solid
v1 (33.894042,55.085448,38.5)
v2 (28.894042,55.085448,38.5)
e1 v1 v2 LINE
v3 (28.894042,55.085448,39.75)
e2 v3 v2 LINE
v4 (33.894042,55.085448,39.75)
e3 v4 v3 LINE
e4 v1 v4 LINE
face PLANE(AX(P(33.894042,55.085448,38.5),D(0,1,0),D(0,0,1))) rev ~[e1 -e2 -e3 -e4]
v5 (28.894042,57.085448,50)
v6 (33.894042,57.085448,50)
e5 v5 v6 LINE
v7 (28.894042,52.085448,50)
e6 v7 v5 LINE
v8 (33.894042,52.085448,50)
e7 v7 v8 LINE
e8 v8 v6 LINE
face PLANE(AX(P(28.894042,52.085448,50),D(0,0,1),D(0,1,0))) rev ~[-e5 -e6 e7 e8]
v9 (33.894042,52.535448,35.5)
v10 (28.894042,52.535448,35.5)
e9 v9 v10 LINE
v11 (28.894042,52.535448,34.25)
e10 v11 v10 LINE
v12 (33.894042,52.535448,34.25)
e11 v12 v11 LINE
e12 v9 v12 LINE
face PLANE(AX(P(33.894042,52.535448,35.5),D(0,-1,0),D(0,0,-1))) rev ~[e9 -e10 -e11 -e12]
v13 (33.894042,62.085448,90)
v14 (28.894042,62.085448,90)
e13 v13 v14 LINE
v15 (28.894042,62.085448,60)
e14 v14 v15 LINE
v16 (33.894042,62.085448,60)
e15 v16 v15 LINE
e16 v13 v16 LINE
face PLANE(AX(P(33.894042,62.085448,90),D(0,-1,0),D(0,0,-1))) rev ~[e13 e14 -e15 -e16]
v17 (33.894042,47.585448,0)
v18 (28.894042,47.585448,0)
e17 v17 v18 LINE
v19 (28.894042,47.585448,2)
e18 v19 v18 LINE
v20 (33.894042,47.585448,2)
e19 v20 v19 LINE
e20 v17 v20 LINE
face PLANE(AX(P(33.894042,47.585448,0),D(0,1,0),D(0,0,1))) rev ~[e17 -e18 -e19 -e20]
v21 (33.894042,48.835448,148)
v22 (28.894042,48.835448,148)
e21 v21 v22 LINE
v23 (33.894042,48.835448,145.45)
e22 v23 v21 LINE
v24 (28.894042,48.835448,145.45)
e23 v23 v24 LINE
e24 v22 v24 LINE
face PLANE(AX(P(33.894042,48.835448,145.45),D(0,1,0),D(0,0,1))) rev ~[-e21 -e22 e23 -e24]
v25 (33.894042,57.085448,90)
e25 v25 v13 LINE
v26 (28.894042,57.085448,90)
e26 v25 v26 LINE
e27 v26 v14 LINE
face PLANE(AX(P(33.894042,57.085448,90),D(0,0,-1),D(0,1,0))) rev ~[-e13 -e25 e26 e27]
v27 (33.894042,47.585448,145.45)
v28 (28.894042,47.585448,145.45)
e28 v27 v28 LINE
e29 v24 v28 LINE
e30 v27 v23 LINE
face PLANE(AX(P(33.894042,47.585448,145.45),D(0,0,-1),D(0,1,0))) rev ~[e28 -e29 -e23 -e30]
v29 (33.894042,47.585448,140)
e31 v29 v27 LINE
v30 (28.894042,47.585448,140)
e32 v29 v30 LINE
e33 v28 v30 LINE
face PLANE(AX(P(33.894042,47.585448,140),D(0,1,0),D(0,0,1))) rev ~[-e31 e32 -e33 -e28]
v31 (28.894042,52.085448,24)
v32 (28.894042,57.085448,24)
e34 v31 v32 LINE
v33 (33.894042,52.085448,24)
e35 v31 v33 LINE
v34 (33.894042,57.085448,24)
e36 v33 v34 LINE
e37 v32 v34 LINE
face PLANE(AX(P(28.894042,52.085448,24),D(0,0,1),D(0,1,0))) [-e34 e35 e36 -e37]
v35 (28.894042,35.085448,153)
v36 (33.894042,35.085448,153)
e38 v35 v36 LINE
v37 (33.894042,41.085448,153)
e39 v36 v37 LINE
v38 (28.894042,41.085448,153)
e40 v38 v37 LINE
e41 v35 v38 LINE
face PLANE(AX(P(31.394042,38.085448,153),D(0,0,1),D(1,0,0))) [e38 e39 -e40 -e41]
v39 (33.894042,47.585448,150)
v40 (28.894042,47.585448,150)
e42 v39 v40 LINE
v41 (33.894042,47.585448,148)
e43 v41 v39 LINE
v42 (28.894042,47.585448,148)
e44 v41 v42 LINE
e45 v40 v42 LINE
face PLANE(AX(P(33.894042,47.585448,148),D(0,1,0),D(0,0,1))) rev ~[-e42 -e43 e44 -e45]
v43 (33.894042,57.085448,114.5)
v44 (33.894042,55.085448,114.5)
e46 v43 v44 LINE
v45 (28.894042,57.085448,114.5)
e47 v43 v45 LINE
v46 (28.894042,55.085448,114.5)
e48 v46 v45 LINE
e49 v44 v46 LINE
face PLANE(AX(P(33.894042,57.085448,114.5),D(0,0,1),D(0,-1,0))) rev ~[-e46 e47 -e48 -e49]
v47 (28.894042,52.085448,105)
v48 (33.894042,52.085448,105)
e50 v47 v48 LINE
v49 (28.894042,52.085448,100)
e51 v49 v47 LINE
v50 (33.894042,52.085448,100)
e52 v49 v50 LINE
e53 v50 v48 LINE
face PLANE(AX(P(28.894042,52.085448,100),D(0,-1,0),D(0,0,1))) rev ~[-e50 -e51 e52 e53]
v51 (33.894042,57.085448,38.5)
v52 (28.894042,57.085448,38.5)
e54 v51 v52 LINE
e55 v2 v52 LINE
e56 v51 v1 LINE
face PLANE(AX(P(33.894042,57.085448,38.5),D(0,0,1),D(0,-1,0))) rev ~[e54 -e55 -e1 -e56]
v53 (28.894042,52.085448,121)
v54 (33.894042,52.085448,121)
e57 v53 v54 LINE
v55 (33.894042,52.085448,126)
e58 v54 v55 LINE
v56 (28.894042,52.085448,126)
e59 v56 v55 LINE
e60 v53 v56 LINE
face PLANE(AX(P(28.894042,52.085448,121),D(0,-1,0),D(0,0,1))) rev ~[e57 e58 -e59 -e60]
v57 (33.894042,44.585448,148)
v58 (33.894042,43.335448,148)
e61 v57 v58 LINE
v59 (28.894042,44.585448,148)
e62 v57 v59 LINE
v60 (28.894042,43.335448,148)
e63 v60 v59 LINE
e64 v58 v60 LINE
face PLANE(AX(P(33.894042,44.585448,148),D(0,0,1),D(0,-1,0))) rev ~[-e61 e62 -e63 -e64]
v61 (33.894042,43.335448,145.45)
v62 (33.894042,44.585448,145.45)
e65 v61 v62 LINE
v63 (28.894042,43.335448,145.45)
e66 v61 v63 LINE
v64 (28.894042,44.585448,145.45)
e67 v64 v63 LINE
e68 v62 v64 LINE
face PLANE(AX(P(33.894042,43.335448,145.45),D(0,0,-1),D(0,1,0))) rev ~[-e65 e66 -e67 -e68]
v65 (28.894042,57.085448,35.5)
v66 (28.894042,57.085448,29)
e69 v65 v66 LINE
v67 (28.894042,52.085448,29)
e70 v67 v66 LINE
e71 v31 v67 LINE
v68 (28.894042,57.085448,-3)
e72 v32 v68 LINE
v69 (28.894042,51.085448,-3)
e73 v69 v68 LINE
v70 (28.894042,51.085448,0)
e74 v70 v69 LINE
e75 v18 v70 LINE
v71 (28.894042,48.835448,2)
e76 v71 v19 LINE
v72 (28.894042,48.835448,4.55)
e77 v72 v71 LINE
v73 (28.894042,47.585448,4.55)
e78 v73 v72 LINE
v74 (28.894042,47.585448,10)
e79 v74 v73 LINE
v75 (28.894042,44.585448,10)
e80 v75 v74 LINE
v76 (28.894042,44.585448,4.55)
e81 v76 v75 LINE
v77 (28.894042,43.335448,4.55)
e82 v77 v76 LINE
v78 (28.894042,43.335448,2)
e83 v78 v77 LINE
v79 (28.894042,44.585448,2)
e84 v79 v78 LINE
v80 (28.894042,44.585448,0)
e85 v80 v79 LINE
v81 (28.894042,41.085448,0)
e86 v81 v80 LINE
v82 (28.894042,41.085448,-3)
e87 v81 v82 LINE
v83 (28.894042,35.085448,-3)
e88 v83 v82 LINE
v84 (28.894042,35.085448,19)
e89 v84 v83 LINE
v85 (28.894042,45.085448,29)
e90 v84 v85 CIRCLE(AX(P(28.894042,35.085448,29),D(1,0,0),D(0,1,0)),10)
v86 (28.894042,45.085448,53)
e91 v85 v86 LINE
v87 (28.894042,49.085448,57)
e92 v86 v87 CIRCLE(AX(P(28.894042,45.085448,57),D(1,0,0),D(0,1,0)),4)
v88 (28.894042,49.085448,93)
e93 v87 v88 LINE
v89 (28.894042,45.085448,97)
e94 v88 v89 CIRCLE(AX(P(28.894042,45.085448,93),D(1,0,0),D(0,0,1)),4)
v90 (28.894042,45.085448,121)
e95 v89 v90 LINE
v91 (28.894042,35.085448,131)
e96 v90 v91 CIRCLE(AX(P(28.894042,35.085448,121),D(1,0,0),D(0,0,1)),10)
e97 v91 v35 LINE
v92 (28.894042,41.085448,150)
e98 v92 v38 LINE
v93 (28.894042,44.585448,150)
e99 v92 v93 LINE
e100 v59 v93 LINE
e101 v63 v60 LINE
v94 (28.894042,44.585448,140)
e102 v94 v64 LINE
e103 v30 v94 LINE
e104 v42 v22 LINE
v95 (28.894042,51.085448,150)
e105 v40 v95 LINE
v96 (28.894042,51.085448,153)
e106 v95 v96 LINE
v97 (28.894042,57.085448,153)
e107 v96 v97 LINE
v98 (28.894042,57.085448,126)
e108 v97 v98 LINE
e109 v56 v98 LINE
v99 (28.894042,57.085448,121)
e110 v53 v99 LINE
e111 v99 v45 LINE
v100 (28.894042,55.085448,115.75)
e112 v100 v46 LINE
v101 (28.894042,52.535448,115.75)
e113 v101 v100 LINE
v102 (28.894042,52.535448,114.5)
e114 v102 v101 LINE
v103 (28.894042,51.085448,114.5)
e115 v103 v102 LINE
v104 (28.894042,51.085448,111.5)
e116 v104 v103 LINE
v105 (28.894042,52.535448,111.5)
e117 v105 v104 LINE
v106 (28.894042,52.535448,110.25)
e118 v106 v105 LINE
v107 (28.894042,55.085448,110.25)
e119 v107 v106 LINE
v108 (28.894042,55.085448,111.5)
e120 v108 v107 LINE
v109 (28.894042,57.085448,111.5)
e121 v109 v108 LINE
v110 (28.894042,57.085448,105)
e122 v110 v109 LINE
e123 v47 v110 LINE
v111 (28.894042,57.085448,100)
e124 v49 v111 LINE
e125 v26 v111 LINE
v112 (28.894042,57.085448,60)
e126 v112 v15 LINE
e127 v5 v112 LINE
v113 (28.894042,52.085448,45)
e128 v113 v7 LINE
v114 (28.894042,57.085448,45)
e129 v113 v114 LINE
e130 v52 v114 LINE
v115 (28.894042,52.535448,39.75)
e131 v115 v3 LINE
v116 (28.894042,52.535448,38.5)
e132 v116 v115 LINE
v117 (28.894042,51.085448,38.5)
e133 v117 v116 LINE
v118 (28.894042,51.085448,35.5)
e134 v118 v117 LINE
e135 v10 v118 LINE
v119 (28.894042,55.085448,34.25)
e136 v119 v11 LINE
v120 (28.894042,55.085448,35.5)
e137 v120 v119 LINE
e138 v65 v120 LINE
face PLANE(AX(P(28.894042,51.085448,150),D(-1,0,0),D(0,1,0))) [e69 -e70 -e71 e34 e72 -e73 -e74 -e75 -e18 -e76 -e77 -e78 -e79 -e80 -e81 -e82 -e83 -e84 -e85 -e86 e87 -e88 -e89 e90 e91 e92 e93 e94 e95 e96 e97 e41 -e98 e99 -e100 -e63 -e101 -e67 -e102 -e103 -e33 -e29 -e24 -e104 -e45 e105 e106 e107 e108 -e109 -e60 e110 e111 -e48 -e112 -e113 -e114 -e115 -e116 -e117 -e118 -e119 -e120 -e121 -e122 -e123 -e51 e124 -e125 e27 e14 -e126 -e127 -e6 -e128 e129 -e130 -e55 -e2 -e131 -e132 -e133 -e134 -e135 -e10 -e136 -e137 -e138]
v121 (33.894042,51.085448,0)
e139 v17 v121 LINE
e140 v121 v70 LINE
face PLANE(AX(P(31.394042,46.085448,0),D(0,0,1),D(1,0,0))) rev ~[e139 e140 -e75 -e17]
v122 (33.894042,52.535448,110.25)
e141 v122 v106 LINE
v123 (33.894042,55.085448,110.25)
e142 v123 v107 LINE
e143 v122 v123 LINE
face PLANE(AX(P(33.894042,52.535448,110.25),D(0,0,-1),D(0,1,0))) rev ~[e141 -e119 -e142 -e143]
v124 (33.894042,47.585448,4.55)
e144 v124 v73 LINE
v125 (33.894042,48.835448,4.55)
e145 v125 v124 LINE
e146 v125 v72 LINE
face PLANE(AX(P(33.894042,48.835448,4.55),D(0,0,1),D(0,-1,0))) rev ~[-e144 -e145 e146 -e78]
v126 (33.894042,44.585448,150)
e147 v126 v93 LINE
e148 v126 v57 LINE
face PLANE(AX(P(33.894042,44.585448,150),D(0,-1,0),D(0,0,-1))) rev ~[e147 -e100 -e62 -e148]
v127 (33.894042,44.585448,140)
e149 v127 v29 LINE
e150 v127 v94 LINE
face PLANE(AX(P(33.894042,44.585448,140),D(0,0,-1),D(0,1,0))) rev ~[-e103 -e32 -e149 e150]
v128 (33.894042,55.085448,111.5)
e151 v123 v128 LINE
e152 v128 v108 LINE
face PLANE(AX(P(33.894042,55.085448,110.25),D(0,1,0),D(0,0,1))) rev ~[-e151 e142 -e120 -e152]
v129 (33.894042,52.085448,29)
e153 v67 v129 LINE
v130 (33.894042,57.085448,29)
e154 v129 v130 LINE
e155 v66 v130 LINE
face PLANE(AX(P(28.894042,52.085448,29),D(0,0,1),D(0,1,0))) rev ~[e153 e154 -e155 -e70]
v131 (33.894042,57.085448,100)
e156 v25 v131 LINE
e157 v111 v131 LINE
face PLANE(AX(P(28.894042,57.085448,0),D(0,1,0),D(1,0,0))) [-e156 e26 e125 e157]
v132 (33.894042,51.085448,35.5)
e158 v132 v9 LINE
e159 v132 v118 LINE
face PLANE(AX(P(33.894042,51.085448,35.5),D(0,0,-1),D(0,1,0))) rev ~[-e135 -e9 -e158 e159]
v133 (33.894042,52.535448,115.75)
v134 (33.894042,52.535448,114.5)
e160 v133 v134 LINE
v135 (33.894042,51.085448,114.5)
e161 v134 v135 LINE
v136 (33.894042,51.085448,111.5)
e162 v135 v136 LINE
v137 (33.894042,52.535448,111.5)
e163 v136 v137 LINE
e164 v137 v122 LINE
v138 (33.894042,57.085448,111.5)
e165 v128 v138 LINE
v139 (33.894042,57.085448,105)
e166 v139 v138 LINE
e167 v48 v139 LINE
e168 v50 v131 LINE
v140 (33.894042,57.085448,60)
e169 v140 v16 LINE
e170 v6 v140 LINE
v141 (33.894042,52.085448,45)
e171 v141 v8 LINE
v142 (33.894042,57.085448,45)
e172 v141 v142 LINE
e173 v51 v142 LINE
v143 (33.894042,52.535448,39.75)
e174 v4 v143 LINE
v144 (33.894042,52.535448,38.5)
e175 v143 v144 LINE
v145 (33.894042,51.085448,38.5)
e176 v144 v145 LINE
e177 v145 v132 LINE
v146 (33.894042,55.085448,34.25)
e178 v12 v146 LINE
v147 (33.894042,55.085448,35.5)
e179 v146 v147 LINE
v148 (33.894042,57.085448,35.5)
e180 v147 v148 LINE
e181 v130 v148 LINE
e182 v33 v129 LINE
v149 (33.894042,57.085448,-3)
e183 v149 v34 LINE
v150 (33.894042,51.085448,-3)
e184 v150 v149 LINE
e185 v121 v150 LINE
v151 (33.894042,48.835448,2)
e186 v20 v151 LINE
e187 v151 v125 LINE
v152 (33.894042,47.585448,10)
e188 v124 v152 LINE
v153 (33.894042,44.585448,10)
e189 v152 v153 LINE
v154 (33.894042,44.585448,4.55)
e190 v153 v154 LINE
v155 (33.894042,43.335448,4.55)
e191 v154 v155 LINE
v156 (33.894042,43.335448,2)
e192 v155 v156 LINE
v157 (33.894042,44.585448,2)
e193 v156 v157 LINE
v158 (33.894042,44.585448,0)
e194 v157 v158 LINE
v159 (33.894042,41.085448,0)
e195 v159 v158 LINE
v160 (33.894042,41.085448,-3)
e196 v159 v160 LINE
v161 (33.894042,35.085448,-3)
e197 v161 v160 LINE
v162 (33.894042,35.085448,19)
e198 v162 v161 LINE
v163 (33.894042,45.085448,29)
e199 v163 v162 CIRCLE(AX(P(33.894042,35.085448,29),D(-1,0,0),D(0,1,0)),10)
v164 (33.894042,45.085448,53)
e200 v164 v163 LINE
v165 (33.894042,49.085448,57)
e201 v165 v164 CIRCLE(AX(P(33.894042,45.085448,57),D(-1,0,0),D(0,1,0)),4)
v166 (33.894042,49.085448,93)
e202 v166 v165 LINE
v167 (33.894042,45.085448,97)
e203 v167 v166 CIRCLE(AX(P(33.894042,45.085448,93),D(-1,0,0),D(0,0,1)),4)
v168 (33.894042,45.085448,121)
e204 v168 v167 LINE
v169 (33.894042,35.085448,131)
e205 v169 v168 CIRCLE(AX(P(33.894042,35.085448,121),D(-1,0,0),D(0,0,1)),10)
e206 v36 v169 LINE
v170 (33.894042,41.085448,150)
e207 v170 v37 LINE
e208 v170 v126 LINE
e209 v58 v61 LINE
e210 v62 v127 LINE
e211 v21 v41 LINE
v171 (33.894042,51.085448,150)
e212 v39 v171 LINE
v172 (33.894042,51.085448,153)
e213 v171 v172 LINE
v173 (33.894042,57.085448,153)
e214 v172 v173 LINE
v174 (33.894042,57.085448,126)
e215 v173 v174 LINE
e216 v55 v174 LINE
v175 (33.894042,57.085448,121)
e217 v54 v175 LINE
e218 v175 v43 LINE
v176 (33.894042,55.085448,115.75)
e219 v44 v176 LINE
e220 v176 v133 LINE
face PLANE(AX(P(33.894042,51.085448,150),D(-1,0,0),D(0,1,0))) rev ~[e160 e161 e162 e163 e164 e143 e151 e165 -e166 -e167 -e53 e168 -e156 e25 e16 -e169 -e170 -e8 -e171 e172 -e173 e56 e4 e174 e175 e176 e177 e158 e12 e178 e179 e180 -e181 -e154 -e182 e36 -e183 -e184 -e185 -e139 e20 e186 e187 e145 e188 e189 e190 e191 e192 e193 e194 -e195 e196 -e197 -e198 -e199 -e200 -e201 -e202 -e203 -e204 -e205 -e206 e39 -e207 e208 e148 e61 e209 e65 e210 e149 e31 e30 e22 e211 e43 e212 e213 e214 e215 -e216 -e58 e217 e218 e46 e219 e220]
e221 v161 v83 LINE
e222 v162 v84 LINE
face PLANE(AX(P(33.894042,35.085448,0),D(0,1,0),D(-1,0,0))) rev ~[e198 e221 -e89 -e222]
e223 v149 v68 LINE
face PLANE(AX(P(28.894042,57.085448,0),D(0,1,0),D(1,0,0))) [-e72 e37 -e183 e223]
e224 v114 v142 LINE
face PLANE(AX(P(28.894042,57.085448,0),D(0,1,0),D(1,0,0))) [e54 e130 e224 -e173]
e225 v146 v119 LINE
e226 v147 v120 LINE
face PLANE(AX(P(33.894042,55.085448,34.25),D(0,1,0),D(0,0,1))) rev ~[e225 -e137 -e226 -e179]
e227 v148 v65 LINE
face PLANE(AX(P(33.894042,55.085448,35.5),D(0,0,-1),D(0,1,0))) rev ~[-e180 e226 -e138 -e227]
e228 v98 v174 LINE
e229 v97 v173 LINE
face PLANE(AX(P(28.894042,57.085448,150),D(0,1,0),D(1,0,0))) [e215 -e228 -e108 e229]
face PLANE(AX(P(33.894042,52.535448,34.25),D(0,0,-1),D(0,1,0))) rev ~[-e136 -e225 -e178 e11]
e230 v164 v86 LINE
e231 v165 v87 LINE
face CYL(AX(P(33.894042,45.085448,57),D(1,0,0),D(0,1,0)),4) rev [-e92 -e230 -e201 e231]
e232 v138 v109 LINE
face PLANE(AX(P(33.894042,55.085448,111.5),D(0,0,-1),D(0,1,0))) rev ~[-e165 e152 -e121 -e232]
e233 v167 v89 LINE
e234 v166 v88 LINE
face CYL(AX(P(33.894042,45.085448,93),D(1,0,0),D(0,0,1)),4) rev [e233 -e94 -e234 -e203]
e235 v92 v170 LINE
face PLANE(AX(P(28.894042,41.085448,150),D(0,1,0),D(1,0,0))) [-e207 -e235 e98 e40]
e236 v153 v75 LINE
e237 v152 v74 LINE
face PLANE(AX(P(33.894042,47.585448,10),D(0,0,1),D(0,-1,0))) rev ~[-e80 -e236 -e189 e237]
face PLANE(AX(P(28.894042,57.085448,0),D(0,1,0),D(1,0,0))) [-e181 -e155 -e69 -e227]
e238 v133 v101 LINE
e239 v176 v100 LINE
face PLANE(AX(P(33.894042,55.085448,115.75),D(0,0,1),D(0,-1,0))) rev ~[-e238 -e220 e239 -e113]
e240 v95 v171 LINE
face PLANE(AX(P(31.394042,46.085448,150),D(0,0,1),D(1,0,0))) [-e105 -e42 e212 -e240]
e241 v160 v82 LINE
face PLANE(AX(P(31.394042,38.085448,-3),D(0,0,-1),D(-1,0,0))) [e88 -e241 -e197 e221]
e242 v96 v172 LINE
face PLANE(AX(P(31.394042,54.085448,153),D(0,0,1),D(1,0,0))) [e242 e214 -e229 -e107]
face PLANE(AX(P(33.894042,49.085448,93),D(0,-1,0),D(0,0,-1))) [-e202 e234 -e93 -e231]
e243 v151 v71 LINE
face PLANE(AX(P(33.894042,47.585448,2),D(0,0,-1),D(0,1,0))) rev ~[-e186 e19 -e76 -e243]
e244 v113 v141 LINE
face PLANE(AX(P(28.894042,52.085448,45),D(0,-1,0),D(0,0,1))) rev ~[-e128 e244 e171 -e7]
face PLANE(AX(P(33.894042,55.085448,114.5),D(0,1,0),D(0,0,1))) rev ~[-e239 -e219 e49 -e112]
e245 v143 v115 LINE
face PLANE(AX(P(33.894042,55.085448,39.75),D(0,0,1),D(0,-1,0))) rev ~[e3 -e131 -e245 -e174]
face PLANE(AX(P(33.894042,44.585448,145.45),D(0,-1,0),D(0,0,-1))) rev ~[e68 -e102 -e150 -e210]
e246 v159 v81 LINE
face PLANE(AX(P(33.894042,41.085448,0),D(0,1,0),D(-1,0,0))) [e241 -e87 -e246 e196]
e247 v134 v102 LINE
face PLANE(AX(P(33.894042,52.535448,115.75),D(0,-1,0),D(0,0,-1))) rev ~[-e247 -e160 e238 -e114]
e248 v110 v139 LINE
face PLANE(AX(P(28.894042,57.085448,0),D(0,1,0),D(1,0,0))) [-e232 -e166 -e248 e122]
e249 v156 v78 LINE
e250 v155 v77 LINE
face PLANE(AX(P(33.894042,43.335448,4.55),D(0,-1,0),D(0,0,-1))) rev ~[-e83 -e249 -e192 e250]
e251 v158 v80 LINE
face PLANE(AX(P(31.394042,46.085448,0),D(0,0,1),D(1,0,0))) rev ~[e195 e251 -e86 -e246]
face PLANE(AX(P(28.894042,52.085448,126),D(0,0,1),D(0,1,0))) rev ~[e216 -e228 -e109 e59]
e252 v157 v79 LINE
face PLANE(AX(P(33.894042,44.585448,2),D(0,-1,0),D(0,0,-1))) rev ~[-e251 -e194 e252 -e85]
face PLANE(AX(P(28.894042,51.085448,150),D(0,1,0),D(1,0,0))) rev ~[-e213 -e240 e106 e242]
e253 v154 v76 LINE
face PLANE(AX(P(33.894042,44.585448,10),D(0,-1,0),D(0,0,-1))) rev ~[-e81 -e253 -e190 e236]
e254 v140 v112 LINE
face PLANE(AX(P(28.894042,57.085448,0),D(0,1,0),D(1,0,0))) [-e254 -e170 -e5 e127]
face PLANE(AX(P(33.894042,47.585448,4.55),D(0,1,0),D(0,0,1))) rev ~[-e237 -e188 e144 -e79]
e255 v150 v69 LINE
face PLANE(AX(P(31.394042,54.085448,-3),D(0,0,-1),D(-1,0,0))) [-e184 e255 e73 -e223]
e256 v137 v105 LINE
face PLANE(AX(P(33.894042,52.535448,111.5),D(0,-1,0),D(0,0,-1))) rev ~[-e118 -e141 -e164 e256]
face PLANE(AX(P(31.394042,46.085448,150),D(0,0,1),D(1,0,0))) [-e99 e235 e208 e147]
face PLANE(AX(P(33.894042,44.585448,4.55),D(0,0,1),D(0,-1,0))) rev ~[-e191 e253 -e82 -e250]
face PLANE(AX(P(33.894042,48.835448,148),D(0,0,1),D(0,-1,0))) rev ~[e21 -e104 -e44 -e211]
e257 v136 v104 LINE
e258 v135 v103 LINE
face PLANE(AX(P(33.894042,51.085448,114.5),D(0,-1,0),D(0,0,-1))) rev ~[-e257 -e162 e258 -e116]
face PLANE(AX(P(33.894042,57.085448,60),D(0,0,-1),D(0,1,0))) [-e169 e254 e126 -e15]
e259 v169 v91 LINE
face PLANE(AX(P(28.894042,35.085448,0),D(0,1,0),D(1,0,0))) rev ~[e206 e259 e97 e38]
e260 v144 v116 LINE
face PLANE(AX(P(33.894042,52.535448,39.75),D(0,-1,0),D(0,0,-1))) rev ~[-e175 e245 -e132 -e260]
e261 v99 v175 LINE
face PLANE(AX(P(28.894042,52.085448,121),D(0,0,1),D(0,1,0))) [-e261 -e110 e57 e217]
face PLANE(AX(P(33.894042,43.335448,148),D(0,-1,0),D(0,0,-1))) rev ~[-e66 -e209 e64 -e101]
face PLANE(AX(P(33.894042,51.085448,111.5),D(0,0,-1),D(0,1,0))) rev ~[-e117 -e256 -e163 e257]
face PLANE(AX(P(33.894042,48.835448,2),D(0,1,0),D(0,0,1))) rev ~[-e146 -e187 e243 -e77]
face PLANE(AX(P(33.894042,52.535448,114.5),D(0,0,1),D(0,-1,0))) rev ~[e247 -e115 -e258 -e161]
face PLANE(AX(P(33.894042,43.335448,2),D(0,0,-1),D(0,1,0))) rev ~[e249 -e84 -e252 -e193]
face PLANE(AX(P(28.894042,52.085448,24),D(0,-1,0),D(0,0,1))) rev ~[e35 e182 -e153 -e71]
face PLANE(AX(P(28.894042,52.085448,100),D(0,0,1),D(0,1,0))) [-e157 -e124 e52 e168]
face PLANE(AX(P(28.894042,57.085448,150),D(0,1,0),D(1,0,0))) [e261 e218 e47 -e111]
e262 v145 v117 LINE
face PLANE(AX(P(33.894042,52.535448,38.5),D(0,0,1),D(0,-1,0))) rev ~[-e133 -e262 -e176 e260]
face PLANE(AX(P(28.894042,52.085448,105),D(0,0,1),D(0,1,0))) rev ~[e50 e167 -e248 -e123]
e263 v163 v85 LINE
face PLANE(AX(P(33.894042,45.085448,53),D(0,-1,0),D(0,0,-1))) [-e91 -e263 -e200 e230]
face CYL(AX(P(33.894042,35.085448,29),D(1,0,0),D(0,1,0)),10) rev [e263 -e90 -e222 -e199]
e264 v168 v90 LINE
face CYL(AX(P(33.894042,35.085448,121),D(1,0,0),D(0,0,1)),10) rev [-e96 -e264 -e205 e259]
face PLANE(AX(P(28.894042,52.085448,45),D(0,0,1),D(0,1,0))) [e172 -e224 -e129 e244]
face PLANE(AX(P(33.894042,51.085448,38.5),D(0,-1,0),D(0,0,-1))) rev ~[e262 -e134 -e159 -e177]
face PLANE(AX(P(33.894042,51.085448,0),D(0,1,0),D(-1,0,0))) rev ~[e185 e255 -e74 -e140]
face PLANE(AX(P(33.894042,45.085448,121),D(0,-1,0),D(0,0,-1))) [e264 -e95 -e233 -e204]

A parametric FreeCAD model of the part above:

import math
import FreeCAD as App
import Part
import Sketcher

V = App.Vector

doc = App.newDocument("Part")
params = doc.addObject("Spreadsheet::Sheet", "Params")
for row, (alias, value) in enumerate([
    ("sketch1_width", "5 mm"),
    ("sketch1_height", "22 mm"),
    ("pad1_length", "150 mm"),
    ("sketch2_radius", "4 mm"),
    ("sketch2_radius2", "10 mm"),
    ("sketch2_height", "36 mm"),
    ("sketch2_height2", "24 mm"),
    ("sketch3_width", "2 mm"),
    ("sketch3_width2", "3 mm"),
    ("sketch3_width3", "1.45 mm"),
    ("sketch3_width4", "1.25 mm"),
    ("sketch4_width", "5 mm"),
    ("sketch4_height", "6 mm"),
    ("pad2_length", "3 mm"),
    ("sketch5_width", "5 mm"),
    ("sketch5_height", "6 mm"),
    ("pad3_length", "3 mm"),
    ("sketch6_width", "5 mm"),
    ("sketch6_height", "30 mm"),
    ("pad4_length", "5 mm"),
    ("sketch7_width", "5 mm"),
    ("sketch8_width", "5 mm"),
], start=1):
    params.set(f"A{row}", alias)
    params.set(f"B{row}", "=" + value)
    params.setAlias(f"B{row}", alias)

body = doc.addObject("PartDesign::Body", "Body")

sketch1 = doc.addObject("Sketcher::SketchObject", "Sketch")
body.addObject(sketch1)
sketch1.AttachmentSupport = (doc.XY_Plane, [""])
sketch1.MapMode = "FlatFace"
sketch1.addGeometry([
    Part.LineSegment(V(28.894042, 57.085448, 0), V(28.894042, 35.085448, 0)),
    Part.LineSegment(V(28.894042, 35.085448, 0), V(33.894042, 35.085448, 0)),
    Part.LineSegment(V(33.894042, 35.085448, 0), V(33.894042, 57.085448, 0)),
    Part.LineSegment(V(33.894042, 57.085448, 0), V(28.894042, 57.085448, 0)),
], False)
sketch1.addConstraint([
    Sketcher.Constraint("Coincident", 0, 2, 1, 1),
    Sketcher.Constraint("Coincident", 1, 2, 2, 1),
    Sketcher.Constraint("Coincident", 2, 2, 3, 1),
    Sketcher.Constraint("Coincident", 3, 2, 0, 1),
    Sketcher.Constraint("Vertical", 0),
    Sketcher.Constraint("Horizontal", 1),
    Sketcher.Constraint("Vertical", 2),
    Sketcher.Constraint("Horizontal", 3),
    Sketcher.Constraint("DistanceX", 1, 1, 1, 2, 5.0),
    Sketcher.Constraint("DistanceY", 0, 2, 0, 1, 22.0),
    Sketcher.Constraint("DistanceY", -1, 1, 0, 2, 35.085448),
    Sketcher.Constraint("DistanceX", -1, 1, 0, 2, 28.894042),
])
sketch1.setExpression("Constraints[8]", "Params.sketch1_width")
sketch1.setExpression("Constraints[9]", "Params.sketch1_height")
pad1 = doc.addObject("PartDesign::Pad", "Pad")
body.addObject(pad1)
pad1.Profile = sketch1
pad1.setExpression("Length", "Params.pad1_length")

sketch2 = doc.addObject("Sketcher::SketchObject", "Sketch001")
body.addObject(sketch2)
sketch2.AttachmentSupport = (doc.YZ_Plane, [""])
sketch2.MapMode = "FlatFace"
sketch2.AttachmentOffset = App.Placement(V(0, 0, 33.894042), App.Rotation())
sketch2.addGeometry([
    Part.LineSegment(V(49.085448, 57, 0), V(49.085448, 93, 0)),
    Part.ArcOfCircle(Part.Circle(V(45.085448, 93, 0), V(0, 0, 1), 4), math.radians(0), math.radians(90)),
    Part.LineSegment(V(45.085448, 97, 0), V(45.085448, 121, 0)),
    Part.ArcOfCircle(Part.Circle(V(35.085448, 121, 0), V(0, 0, 1), 10), math.radians(0), math.radians(90)),
    Part.LineSegment(V(35.085448, 131, 0), V(35.085448, 19, 0)),
    Part.ArcOfCircle(Part.Circle(V(35.085448, 29, 0), V(0, 0, 1), 10), math.radians(-90), math.radians(0)),
    Part.LineSegment(V(45.085448, 29, 0), V(45.085448, 53, 0)),
    Part.ArcOfCircle(Part.Circle(V(45.085448, 57, 0), V(0, 0, 1), 4), math.radians(-90), math.radians(0)),
], False)
sketch2.addConstraint([
    Sketcher.Constraint("Tangent", 0, 2, 1, 1),
    Sketcher.Constraint("Coincident", 1, 2, 2, 1),
    Sketcher.Constraint("Tangent", 2, 2, 3, 1),
    Sketcher.Constraint("Coincident", 3, 2, 4, 1),
    Sketcher.Constraint("Coincident", 4, 2, 5, 1),
    Sketcher.Constraint("Tangent", 5, 2, 6, 1),
    Sketcher.Constraint("Coincident", 6, 2, 7, 1),
    Sketcher.Constraint("Tangent", 7, 2, 0, 1),
    Sketcher.Constraint("Vertical", 0),
    Sketcher.Constraint("Vertical", 2),
    Sketcher.Constraint("Vertical", 4),
    Sketcher.Constraint("Vertical", 6),
    Sketcher.Constraint("Equal", 3, 5),
    Sketcher.Constraint("Equal", 1, 7),
    Sketcher.Constraint("Vertical", 3, 3, 5, 3),
    Sketcher.Constraint("Vertical", 7, 3, 1, 2),
    Sketcher.Constraint("Vertical", 5, 3, 3, 2),
    Sketcher.Constraint("Equal", 2, 6),
    Sketcher.Constraint("Radius", 1, 4.0),
    Sketcher.Constraint("Radius", 3, 10.0),
    Sketcher.Constraint("DistanceY", 0, 1, 0, 2, 36.0),
    Sketcher.Constraint("DistanceY", 2, 1, 2, 2, 24.0),
    Sketcher.Constraint("DistanceY", -1, 1, 1, 3, 93.0),
    Sketcher.Constraint("DistanceX", -1, 1, 1, 3, 45.085448),
])
sketch2.setExpression("Constraints[18]", "Params.sketch2_radius")
sketch2.setExpression("Constraints[19]", "Params.sketch2_radius2")
sketch2.setExpression("Constraints[20]", "Params.sketch2_height")
sketch2.setExpression("Constraints[21]", "Params.sketch2_height2")
pocket1 = doc.addObject("PartDesign::Pocket", "Pocket")
body.addObject(pocket1)
pocket1.Profile = sketch2
pocket1.Type = "ThroughAll"

sketch3 = doc.addObject("Sketcher::SketchObject", "Sketch002")
body.addObject(sketch3)
sketch3.AttachmentSupport = (doc.YZ_Plane, [""])
sketch3.MapMode = "FlatFace"
sketch3.AttachmentOffset = App.Placement(V(0, 0, 33.894042), App.Rotation())
sketch3.addGeometry([
    Part.LineSegment(V(51.085448, 38.5, 0), V(51.085448, 35.5, 0)),
    Part.LineSegment(V(51.085448, 35.5, 0), V(52.535448, 35.5, 0)),
    Part.LineSegment(V(52.535448, 35.5, 0), V(52.535448, 34.25, 0)),
    Part.LineSegment(V(52.535448, 34.25, 0), V(55.085448, 34.25, 0)),
    Part.LineSegment(V(55.085448, 34.25, 0), V(55.085448, 35.5, 0)),
    Part.LineSegment(V(55.085448, 35.5, 0), V(57.085448, 35.5, 0)),
    Part.LineSegment(V(57.085448, 35.5, 0), V(57.085448, 38.5, 0)),
    Part.LineSegment(V(57.085448, 38.5, 0), V(55.085448, 38.5, 0)),
    Part.LineSegment(V(55.085448, 38.5, 0), V(55.085448, 39.75, 0)),
    Part.LineSegment(V(55.085448, 39.75, 0), V(52.535448, 39.75, 0)),
    Part.LineSegment(V(52.535448, 39.75, 0), V(52.535448, 38.5, 0)),
    Part.LineSegment(V(52.535448, 38.5, 0), V(51.085448, 38.5, 0)),
    Part.LineSegment(V(57.085448, 111.5, 0), V(57.085448, 114.5, 0)),
    Part.LineSegment(V(57.085448, 114.5, 0), V(55.085448, 114.5, 0)),
    Part.LineSegment(V(55.085448, 114.5, 0), V(55.085448, 115.75, 0)),
    Part.LineSegment(V(55.085448, 115.75, 0), V(52.535448, 115.75, 0)),
    Part.LineSegment(V(52.535448, 115.75, 0), V(52.535448, 114.5, 0)),
    Part.LineSegment(V(52.535448, 114.5, 0), V(51.085448, 114.5, 0)),
    Part.LineSegment(V(51.085448, 114.5, 0), V(51.085448, 111.5, 0)),
    Part.LineSegment(V(51.085448, 111.5, 0), V(52.535448, 111.5, 0)),
    Part.LineSegment(V(52.535448, 111.5, 0), V(52.535448, 110.25, 0)),
    Part.LineSegment(V(52.535448, 110.25, 0), V(55.085448, 110.25, 0)),
    Part.LineSegment(V(55.085448, 110.25, 0), V(55.085448, 111.5, 0)),
    Part.LineSegment(V(55.085448, 111.5, 0), V(57.085448, 111.5, 0)),
    Part.LineSegment(V(44.585448, 10, 0), V(44.585448, 4.55, 0)),
    Part.LineSegment(V(44.585448, 4.55, 0), V(43.335448, 4.55, 0)),
    Part.LineSegment(V(43.335448, 4.55, 0), V(43.335448, 2, 0)),
    Part.LineSegment(V(43.335448, 2, 0), V(44.585448, 2, 0)),
    Part.LineSegment(V(44.585448, 2, 0), V(44.585448, 0, 0)),
    Part.LineSegment(V(44.585448, 0, 0), V(47.585448, 0, 0)),
    Part.LineSegment(V(47.585448, 0, 0), V(47.585448, 2, 0)),
    Part.LineSegment(V(47.585448, 2, 0), V(48.835448, 2, 0)),
    Part.LineSegment(V(48.835448, 2, 0), V(48.835448, 4.55, 0)),
    Part.LineSegment(V(48.835448, 4.55, 0), V(47.585448, 4.55, 0)),
    Part.LineSegment(V(47.585448, 4.55, 0), V(47.585448, 10, 0)),
    Part.LineSegment(V(47.585448, 10, 0), V(44.585448, 10, 0)),
    Part.LineSegment(V(47.585448, 145.45, 0), V(48.835448, 145.45, 0)),
    Part.LineSegment(V(48.835448, 145.45, 0), V(48.835448, 148, 0)),
    Part.LineSegment(V(48.835448, 148, 0), V(47.585448, 148, 0)),
    Part.LineSegment(V(47.585448, 148, 0), V(47.585448, 150, 0)),
    Part.LineSegment(V(47.585448, 150, 0), V(44.585448, 150, 0)),
    Part.LineSegment(V(44.585448, 150, 0), V(44.585448, 148, 0)),
    Part.LineSegment(V(44.585448, 148, 0), V(43.335448, 148, 0)),
    Part.LineSegment(V(43.335448, 148, 0), V(43.335448, 145.45, 0)),
    Part.LineSegment(V(43.335448, 145.45, 0), V(44.585448, 145.45, 0)),
    Part.LineSegment(V(44.585448, 145.45, 0), V(44.585448, 140, 0)),
    Part.LineSegment(V(44.585448, 140, 0), V(47.585448, 140, 0)),
    Part.LineSegment(V(47.585448, 140, 0), V(47.585448, 145.45, 0)),
], False)
sketch3.addConstraint([
    Sketcher.Constraint("Coincident", 0, 2, 1, 1),
    Sketcher.Constraint("Coincident", 1, 2, 2, 1),
    Sketcher.Constraint("Coincident", 2, 2, 3, 1),
    Sketcher.Constraint("Coincident", 3, 2, 4, 1),
    Sketcher.Constraint("Coincident", 4, 2, 5, 1),
    Sketcher.Constraint("Coincident", 5, 2, 6, 1),
    Sketcher.Constraint("Coincident", 6, 2, 7, 1),
    Sketcher.Constraint("Coincident", 7, 2, 8, 1),
    Sketcher.Constraint("Coincident", 8, 2, 9, 1),
    Sketcher.Constraint("Coincident", 9, 2, 10, 1),
    Sketcher.Constraint("Coincident", 10, 2, 11, 1),
    Sketcher.Constraint("Coincident", 11, 2, 0, 1),
    Sketcher.Constraint("Coincident", 12, 2, 13, 1),
    Sketcher.Constraint("Coincident", 13, 2, 14, 1),
    Sketcher.Constraint("Coincident", 14, 2, 15, 1),
    Sketcher.Constraint("Coincident", 15, 2, 16, 1),
    Sketcher.Constraint("Coincident", 16, 2, 17, 1),
    Sketcher.Constraint("Coincident", 17, 2, 18, 1),
    Sketcher.Constraint("Coincident", 18, 2, 19, 1),
    Sketcher.Constraint("Coincident", 19, 2, 20, 1),
    Sketcher.Constraint("Coincident", 20, 2, 21, 1),
    Sketcher.Constraint("Coincident", 21, 2, 22, 1),
    Sketcher.Constraint("Coincident", 22, 2, 23, 1),
    Sketcher.Constraint("Coincident", 23, 2, 12, 1),
    Sketcher.Constraint("Coincident", 24, 2, 25, 1),
    Sketcher.Constraint("Coincident", 25, 2, 26, 1),
    Sketcher.Constraint("Coincident", 26, 2, 27, 1),
    Sketcher.Constraint("Coincident", 27, 2, 28, 1),
    Sketcher.Constraint("Coincident", 28, 2, 29, 1),
    Sketcher.Constraint("Coincident", 29, 2, 30, 1),
    Sketcher.Constraint("Coincident", 30, 2, 31, 1),
    Sketcher.Constraint("Coincident", 31, 2, 32, 1),
    Sketcher.Constraint("Coincident", 32, 2, 33, 1),
    Sketcher.Constraint("Coincident", 33, 2, 34, 1),
    Sketcher.Constraint("Coincident", 34, 2, 35, 1),
    Sketcher.Constraint("Coincident", 35, 2, 24, 1),
    Sketcher.Constraint("Coincident", 36, 2, 37, 1),
    Sketcher.Constraint("Coincident", 37, 2, 38, 1),
    Sketcher.Constraint("Coincident", 38, 2, 39, 1),
    Sketcher.Constraint("Coincident", 39, 2, 40, 1),
    Sketcher.Constraint("Coincident", 40, 2, 41, 1),
    Sketcher.Constraint("Coincident", 41, 2, 42, 1),
    Sketcher.Constraint("Coincident", 42, 2, 43, 1),
    Sketcher.Constraint("Coincident", 43, 2, 44, 1),
    Sketcher.Constraint("Coincident", 44, 2, 45, 1),
    Sketcher.Constraint("Coincident", 45, 2, 46, 1),
    Sketcher.Constraint("Coincident", 46, 2, 47, 1),
    Sketcher.Constraint("Coincident", 47, 2, 36, 1),
    Sketcher.Constraint("Vertical", 0),
    Sketcher.Constraint("Horizontal", 1),
    Sketcher.Constraint("Vertical", 2),
    Sketcher.Constraint("Horizontal", 3),
    Sketcher.Constraint("Vertical", 4),
    Sketcher.Constraint("Horizontal", 5),
    Sketcher.Constraint("Vertical", 6),
    Sketcher.Constraint("Horizontal", 7),
    Sketcher.Constraint("Vertical", 8),
    Sketcher.Constraint("Horizontal", 9),
    Sketcher.Constraint("Vertical", 10),
    Sketcher.Constraint("Horizontal", 11),
    Sketcher.Constraint("Vertical", 12),
    Sketcher.Constraint("Horizontal", 13),
    Sketcher.Constraint("Vertical", 14),
    Sketcher.Constraint("Horizontal", 15),
    Sketcher.Constraint("Vertical", 16),
    Sketcher.Constraint("Horizontal", 17),
    Sketcher.Constraint("Vertical", 18),
    Sketcher.Constraint("Horizontal", 19),
    Sketcher.Constraint("Vertical", 20),
    Sketcher.Constraint("Horizontal", 21),
    Sketcher.Constraint("Vertical", 22),
    Sketcher.Constraint("Horizontal", 23),
    Sketcher.Constraint("Vertical", 24),
    Sketcher.Constraint("Horizontal", 25),
    Sketcher.Constraint("Vertical", 26),
    Sketcher.Constraint("Horizontal", 27),
    Sketcher.Constraint("Vertical", 28),
    Sketcher.Constraint("Horizontal", 29),
    Sketcher.Constraint("Vertical", 30),
    Sketcher.Constraint("Horizontal", 31),
    Sketcher.Constraint("Vertical", 32),
    Sketcher.Constraint("Horizontal", 33),
    Sketcher.Constraint("Vertical", 34),
    Sketcher.Constraint("Horizontal", 35),
    Sketcher.Constraint("Horizontal", 36),
    Sketcher.Constraint("Vertical", 37),
    Sketcher.Constraint("Horizontal", 38),
    Sketcher.Constraint("Vertical", 39),
    Sketcher.Constraint("Horizontal", 40),
    Sketcher.Constraint("Vertical", 41),
    Sketcher.Constraint("Horizontal", 42),
    Sketcher.Constraint("Vertical", 43),
    Sketcher.Constraint("Horizontal", 44),
    Sketcher.Constraint("Vertical", 45),
    Sketcher.Constraint("Horizontal", 46),
    Sketcher.Constraint("Vertical", 47),
    Sketcher.Constraint("PointOnObject", 28, 2, -1),
    Sketcher.Constraint("Horizontal", 1, 2, 4, 2),
    Sketcher.Constraint("Horizontal", 7, 2, 10, 2),
    Sketcher.Constraint("Horizontal", 13, 2, 16, 2),
    Sketcher.Constraint("Horizontal", 19, 2, 22, 2),
    Sketcher.Constraint("Horizontal", 27, 2, 30, 2),
    Sketcher.Constraint("Horizontal", 25, 2, 32, 2),
    Sketcher.Constraint("Horizontal", 38, 2, 41, 2),
    Sketcher.Constraint("Horizontal", 36, 2, 43, 2),
    Sketcher.Constraint("Vertical", 4, 2, 7, 2),
    Sketcher.Constraint("Vertical", 2, 2, 9, 2),
    Sketcher.Constraint("Vertical", 6, 2, 12, 2),
    Sketcher.Constraint("Vertical", 8, 2, 13, 2),
    Sketcher.Constraint("Vertical", 10, 2, 15, 2),
    Sketcher.Constraint("Vertical", 11, 2, 17, 2),
    Sketcher.Constraint("Vertical", 16, 2, 19, 2),
    Sketcher.Constraint("Vertical", 14, 2, 21, 2),
    Sketcher.Constraint("Vertical", 24, 2, 27, 2),
    Sketcher.Constraint("Vertical", 30, 2, 33, 2),
    Sketcher.Constraint("Vertical", 32, 2, 36, 2),
    Sketcher.Constraint("Vertical", 34, 2, 38, 2),
    Sketcher.Constraint("Vertical", 35, 2, 40, 2),
    Sketcher.Constraint("Vertical", 26, 2, 42, 2),
    Sketcher.Constraint("Vertical", 41, 2, 44, 2),
    Sketcher.Constraint("Vertical", 39, 2, 46, 2),
    Sketcher.Constraint("Equal", 27, 31),
    Sketcher.Constraint("Equal", 46, 0),
    Sketcher.Constraint("Equal", 44, 2),
    Sketcher.Constraint("Equal", 4, 8),
    Sketcher.Constraint("Equal", 6, 12),
    Sketcher.Constraint("Equal", 10, 14),
    Sketcher.Constraint("Equal", 16, 20),
    Sketcher.Constraint("Equal", 21, 26),
    Sketcher.Constraint("Equal", 23, 28),
    Sketcher.Constraint("Equal", 32, 37),
    Sketcher.Constraint("Equal", 30, 39),
    Sketcher.Constraint("Equal", 34, 45),
    Sketcher.Constraint("DistanceX", 5, 1, 5, 2, 2.0),
    Sketcher.Constraint("DistanceX", 29, 1, 29, 2, 3.0),
    Sketcher.Constraint("DistanceY", -1, 1, 34, 2, 10.0),
    Sketcher.Constraint("DistanceY", -1, 1, 37, 2, 148.0),
    Sketcher.Constraint("DistanceX", 0, 2, 3, 2, 4.0),
    Sketcher.Constraint("DistanceY", 6, 2, 12, 2, 76.0),
    Sketcher.Constraint("DistanceX", 1, 1, 1, 2, 1.45),
    Sketcher.Constraint("DistanceX", 25, 2, 25, 1, 1.25),
    Sketcher.Constraint("DistanceY", -1, 1, 0, 2, 35.5),
    Sketcher.Constraint("DistanceX", 24, 2, 3, 2, 10.5),
    Sketcher.Constraint("DistanceX", -1, 1, 0, 2, 51.085448),
])
sketch3.setExpression("Constraints[133]", "Params.sketch3_width")
sketch3.setExpression("Constraints[134]", "Params.sketch3_width2")
sketch3.setExpression("Constraints[139]", "Params.sketch3_width3")
sketch3.setExpression("Constraints[140]", "Params.sketch3_width4")
pocket2 = doc.addObject("PartDesign::Pocket", "Pocket001")
body.addObject(pocket2)
pocket2.Profile = sketch3
pocket2.Type = "ThroughAll"

sketch4 = doc.addObject("Sketcher::SketchObject", "Sketch003")
body.addObject(sketch4)
sketch4.AttachmentSupport = (doc.XY_Plane, [""])
sketch4.MapMode = "FlatFace"
sketch4.addGeometry([
    Part.LineSegment(V(33.894042, 41.085448, 0), V(33.894042, 35.085448, 0)),
    Part.LineSegment(V(33.894042, 35.085448, 0), V(28.894042, 35.085448, 0)),
    Part.LineSegment(V(28.894042, 35.085448, 0), V(28.894042, 41.085448, 0)),
    Part.LineSegment(V(28.894042, 41.085448, 0), V(33.894042, 41.085448, 0)),
    Part.LineSegment(V(33.894042, 57.085448, 0), V(33.894042, 51.085448, 0)),
    Part.LineSegment(V(33.894042, 51.085448, 0), V(28.894042, 51.085448, 0)),
    Part.LineSegment(V(28.894042, 51.085448, 0), V(28.894042, 57.085448, 0)),
    Part.LineSegment(V(28.894042, 57.085448, 0), V(33.894042, 57.085448, 0)),
], False)
sketch4.addConstraint([
    Sketcher.Constraint("Coincident", 0, 2, 1, 1),
    Sketcher.Constraint("Coincident", 1, 2, 2, 1),
    Sketcher.Constraint("Coincident", 2, 2, 3, 1),
    Sketcher.Constraint("Coincident", 3, 2, 0, 1),
    Sketcher.Constraint("Coincident", 4, 2, 5, 1),
    Sketcher.Constraint("Coincident", 5, 2, 6, 1),
    Sketcher.Constraint("Coincident", 6, 2, 7, 1),
    Sketcher.Constraint("Coincident", 7, 2, 4, 1),
    Sketcher.Constraint("Vertical", 0),
    Sketcher.Constraint("Horizontal", 1),
    Sketcher.Constraint("Vertical", 2),
    Sketcher.Constraint("Horizontal", 3),
    Sketcher.Constraint("Vertical", 4),
    Sketcher.Constraint("Horizontal", 5),
    Sketcher.Constraint("Vertical", 6),
    Sketcher.Constraint("Horizontal", 7),
    Sketcher.Constraint("Vertical", 3, 2, 4, 2),
    Sketcher.Constraint("Vertical", 2, 2, 5, 2),
    Sketcher.Constraint("Equal", 2, 4),
    Sketcher.Constraint("DistanceX", 1, 2, 1, 1, 5.0),
    Sketcher.Constraint("DistanceY", 0, 2, 0, 1, 6.0),
    Sketcher.Constraint("DistanceY", 3, 2, 4, 2, 10.0),
    Sketcher.Constraint("DistanceY", -1, 1, 0, 2, 35.085448),
    Sketcher.Constraint("DistanceX", -1, 1, 0, 2, 33.894042),
])
sketch4.setExpression("Constraints[19]", "Params.sketch4_width")
sketch4.setExpression("Constraints[20]", "Params.sketch4_height")
pad2 = doc.addObject("PartDesign::Pad", "Pad001")
body.addObject(pad2)
pad2.Profile = sketch4
pad2.setExpression("Length", "Params.pad2_length")
pad2.Reversed = True

sketch5 = doc.addObject("Sketcher::SketchObject", "Sketch004")
body.addObject(sketch5)
sketch5.AttachmentSupport = (doc.XY_Plane, [""])
sketch5.MapMode = "FlatFace"
sketch5.AttachmentOffset = App.Placement(V(0, 0, 150), App.Rotation())
sketch5.addGeometry([
    Part.LineSegment(V(28.894042, 57.085448, 0), V(28.894042, 51.085448, 0)),
    Part.LineSegment(V(28.894042, 51.085448, 0), V(33.894042, 51.085448, 0)),
    Part.LineSegment(V(33.894042, 51.085448, 0), V(33.894042, 57.085448, 0)),
    Part.LineSegment(V(33.894042, 57.085448, 0), V(28.894042, 57.085448, 0)),
    Part.LineSegment(V(28.894042, 41.085448, 0), V(28.894042, 35.085448, 0)),
    Part.LineSegment(V(28.894042, 35.085448, 0), V(33.894042, 35.085448, 0)),
    Part.LineSegment(V(33.894042, 35.085448, 0), V(33.894042, 41.085448, 0)),
    Part.LineSegment(V(33.894042, 41.085448, 0), V(28.894042, 41.085448, 0)),
], False)
sketch5.addConstraint([
    Sketcher.Constraint("Coincident", 0, 2, 1, 1),
    Sketcher.Constraint("Coincident", 1, 2, 2, 1),
    Sketcher.Constraint("Coincident", 2, 2, 3, 1),
    Sketcher.Constraint("Coincident", 3, 2, 0, 1),
    Sketcher.Constraint("Coincident", 4, 2, 5, 1),
    Sketcher.Constraint("Coincident", 5, 2, 6, 1),
    Sketcher.Constraint("Coincident", 6, 2, 7, 1),
    Sketcher.Constraint("Coincident", 7, 2, 4, 1),
    Sketcher.Constraint("Vertical", 0),
    Sketcher.Constraint("Horizontal", 1),
    Sketcher.Constraint("Vertical", 2),
    Sketcher.Constraint("Horizontal", 3),
    Sketcher.Constraint("Vertical", 4),
    Sketcher.Constraint("Horizontal", 5),
    Sketcher.Constraint("Vertical", 6),
    Sketcher.Constraint("Horizontal", 7),
    Sketcher.Constraint("Vertical", 3, 2, 4, 2),
    Sketcher.Constraint("Vertical", 2, 2, 5, 2),
    Sketcher.Constraint("Equal", 2, 4),
    Sketcher.Constraint("DistanceX", 1, 1, 1, 2, 5.0),
    Sketcher.Constraint("DistanceY", 0, 2, 0, 1, 6.0),
    Sketcher.Constraint("DistanceY", 4, 2, 0, 2, 16.0),
    Sketcher.Constraint("DistanceY", -1, 1, 0, 2, 51.085448),
    Sketcher.Constraint("DistanceX", -1, 1, 0, 2, 28.894042),
])
sketch5.setExpression("Constraints[19]", "Params.sketch5_width")
sketch5.setExpression("Constraints[20]", "Params.sketch5_height")
pad3 = doc.addObject("PartDesign::Pad", "Pad002")
body.addObject(pad3)
pad3.Profile = sketch5
pad3.setExpression("Length", "Params.pad3_length")

sketch6 = doc.addObject("Sketcher::SketchObject", "Sketch005")
body.addObject(sketch6)
sketch6.AttachmentSupport = (doc.YZ_Plane, [""])
sketch6.MapMode = "FlatFace"
sketch6.AttachmentOffset = App.Placement(V(0, 0, 33.894042), App.Rotation())
sketch6.addGeometry([
    Part.LineSegment(V(62.085448, 90, 0), V(57.085448, 90, 0)),
    Part.LineSegment(V(57.085448, 90, 0), V(57.085448, 60, 0)),
    Part.LineSegment(V(57.085448, 60, 0), V(62.085448, 60, 0)),
    Part.LineSegment(V(62.085448, 60, 0), V(62.085448, 90, 0)),
], False)
sketch6.addConstraint([
    Sketcher.Constraint("Coincident", 0, 2, 1, 1),
    Sketcher.Constraint("Coincident", 1, 2, 2, 1),
    Sketcher.Constraint("Coincident", 2, 2, 3, 1),
    Sketcher.Constraint("Coincident", 3, 2, 0, 1),
    Sketcher.Constraint("Horizontal", 0),
    Sketcher.Constraint("Vertical", 1),
    Sketcher.Constraint("Horizontal", 2),
    Sketcher.Constraint("Vertical", 3),
    Sketcher.Constraint("DistanceX", 0, 2, 0, 1, 5.0),
    Sketcher.Constraint("DistanceY", 1, 2, 1, 1, 30.0),
    Sketcher.Constraint("DistanceY", -1, 1, 0, 2, 90.0),
    Sketcher.Constraint("DistanceX", -1, 1, 0, 2, 57.085448),
])
sketch6.setExpression("Constraints[8]", "Params.sketch6_width")
sketch6.setExpression("Constraints[9]", "Params.sketch6_height")
pad4 = doc.addObject("PartDesign::Pad", "Pad003")
body.addObject(pad4)
pad4.Profile = sketch6
pad4.setExpression("Length", "Params.pad4_length")
pad4.Reversed = True

sketch7 = doc.addObject("Sketcher::SketchObject", "Sketch006")
body.addObject(sketch7)
sketch7.AttachmentSupport = (doc.YZ_Plane, [""])
sketch7.MapMode = "FlatFace"
sketch7.AttachmentOffset = App.Placement(V(0, 0, 28.894042), App.Rotation())
sketch7.addGeometry([
    Part.LineSegment(V(57.085448, 121, 0), V(52.085448, 121, 0)),
    Part.LineSegment(V(52.085448, 121, 0), V(52.085448, 126, 0)),
    Part.LineSegment(V(52.085448, 126, 0), V(57.085448, 126, 0)),
    Part.LineSegment(V(57.085448, 126, 0), V(57.085448, 121, 0)),
    Part.LineSegment(V(57.085448, 24, 0), V(52.085448, 24, 0)),
    Part.LineSegment(V(52.085448, 24, 0), V(52.085448, 29, 0)),
    Part.LineSegment(V(52.085448, 29, 0), V(57.085448, 29, 0)),
    Part.LineSegment(V(57.085448, 29, 0), V(57.085448, 24, 0)),
], False)
sketch7.addConstraint([
    Sketcher.Constraint("Coincident", 0, 2, 1, 1),
    Sketcher.Constraint("Coincident", 1, 2, 2, 1),
    Sketcher.Constraint("Coincident", 2, 2, 3, 1),
    Sketcher.Constraint("Coincident", 3, 2, 0, 1),
    Sketcher.Constraint("Coincident", 4, 2, 5, 1),
    Sketcher.Constraint("Coincident", 5, 2, 6, 1),
    Sketcher.Constraint("Coincident", 6, 2, 7, 1),
    Sketcher.Constraint("Coincident", 7, 2, 4, 1),
    Sketcher.Constraint("Horizontal", 0),
    Sketcher.Constraint("Vertical", 1),
    Sketcher.Constraint("Horizontal", 2),
    Sketcher.Constraint("Vertical", 3),
    Sketcher.Constraint("Horizontal", 4),
    Sketcher.Constraint("Vertical", 5),
    Sketcher.Constraint("Horizontal", 6),
    Sketcher.Constraint("Vertical", 7),
    Sketcher.Constraint("Vertical", 1, 2, 4, 2),
    Sketcher.Constraint("Vertical", 3, 2, 6, 2),
    Sketcher.Constraint("Equal", 6, 1),
    Sketcher.Constraint("Equal", 3, 5),
    Sketcher.Constraint("DistanceX", 0, 2, 0, 1, 5.0),
    Sketcher.Constraint("DistanceY", -1, 1, 0, 2, 121.0),
    Sketcher.Constraint("DistanceY", -1, 1, 4, 2, 24.0),
    Sketcher.Constraint("DistanceX", -1, 1, 0, 2, 52.085448),
])
sketch7.setExpression("Constraints[20]", "Params.sketch7_width")
pocket3 = doc.addObject("PartDesign::Pocket", "Pocket002")
body.addObject(pocket3)
pocket3.Profile = sketch7
pocket3.Type = "ThroughAll"
pocket3.Reversed = True

sketch8 = doc.addObject("Sketcher::SketchObject", "Sketch007")
body.addObject(sketch8)
sketch8.AttachmentSupport = (doc.YZ_Plane, [""])
sketch8.MapMode = "FlatFace"
sketch8.AttachmentOffset = App.Placement(V(0, 0, 28.894042), App.Rotation())
sketch8.addGeometry([
    Part.LineSegment(V(57.085448, 45, 0), V(52.085448, 45, 0)),
    Part.LineSegment(V(52.085448, 45, 0), V(52.085448, 50, 0)),
    Part.LineSegment(V(52.085448, 50, 0), V(57.085448, 50, 0)),
    Part.LineSegment(V(57.085448, 50, 0), V(57.085448, 45, 0)),
    Part.LineSegment(V(57.085448, 100, 0), V(52.085448, 100, 0)),
    Part.LineSegment(V(52.085448, 100, 0), V(52.085448, 105, 0)),
    Part.LineSegment(V(52.085448, 105, 0), V(57.085448, 105, 0)),
    Part.LineSegment(V(57.085448, 105, 0), V(57.085448, 100, 0)),
], False)
sketch8.addConstraint([
    Sketcher.Constraint("Coincident", 0, 2, 1, 1),
    Sketcher.Constraint("Coincident", 1, 2, 2, 1),
    Sketcher.Constraint("Coincident", 2, 2, 3, 1),
    Sketcher.Constraint("Coincident", 3, 2, 0, 1),
    Sketcher.Constraint("Coincident", 4, 2, 5, 1),
    Sketcher.Constraint("Coincident", 5, 2, 6, 1),
    Sketcher.Constraint("Coincident", 6, 2, 7, 1),
    Sketcher.Constraint("Coincident", 7, 2, 4, 1),
    Sketcher.Constraint("Horizontal", 0),
    Sketcher.Constraint("Vertical", 1),
    Sketcher.Constraint("Horizontal", 2),
    Sketcher.Constraint("Vertical", 3),
    Sketcher.Constraint("Horizontal", 4),
    Sketcher.Constraint("Vertical", 5),
    Sketcher.Constraint("Horizontal", 6),
    Sketcher.Constraint("Vertical", 7),
    Sketcher.Constraint("Vertical", 1, 2, 4, 2),
    Sketcher.Constraint("Vertical", 3, 2, 6, 2),
    Sketcher.Constraint("Equal", 6, 1),
    Sketcher.Constraint("Equal", 3, 5),
    Sketcher.Constraint("DistanceX", 0, 2, 0, 1, 5.0),
    Sketcher.Constraint("DistanceY", -1, 1, 0, 2, 45.0),
    Sketcher.Constraint("DistanceY", -1, 1, 4, 2, 100.0),
    Sketcher.Constraint("DistanceX", -1, 1, 0, 2, 52.085448),
])
sketch8.setExpression("Constraints[20]", "Params.sketch8_width")
pocket4 = doc.addObject("PartDesign::Pocket", "Pocket003")
body.addObject(pocket4)
pocket4.Profile = sketch8
pocket4.Type = "ThroughAll"
pocket4.Reversed = True

doc.recompute()
